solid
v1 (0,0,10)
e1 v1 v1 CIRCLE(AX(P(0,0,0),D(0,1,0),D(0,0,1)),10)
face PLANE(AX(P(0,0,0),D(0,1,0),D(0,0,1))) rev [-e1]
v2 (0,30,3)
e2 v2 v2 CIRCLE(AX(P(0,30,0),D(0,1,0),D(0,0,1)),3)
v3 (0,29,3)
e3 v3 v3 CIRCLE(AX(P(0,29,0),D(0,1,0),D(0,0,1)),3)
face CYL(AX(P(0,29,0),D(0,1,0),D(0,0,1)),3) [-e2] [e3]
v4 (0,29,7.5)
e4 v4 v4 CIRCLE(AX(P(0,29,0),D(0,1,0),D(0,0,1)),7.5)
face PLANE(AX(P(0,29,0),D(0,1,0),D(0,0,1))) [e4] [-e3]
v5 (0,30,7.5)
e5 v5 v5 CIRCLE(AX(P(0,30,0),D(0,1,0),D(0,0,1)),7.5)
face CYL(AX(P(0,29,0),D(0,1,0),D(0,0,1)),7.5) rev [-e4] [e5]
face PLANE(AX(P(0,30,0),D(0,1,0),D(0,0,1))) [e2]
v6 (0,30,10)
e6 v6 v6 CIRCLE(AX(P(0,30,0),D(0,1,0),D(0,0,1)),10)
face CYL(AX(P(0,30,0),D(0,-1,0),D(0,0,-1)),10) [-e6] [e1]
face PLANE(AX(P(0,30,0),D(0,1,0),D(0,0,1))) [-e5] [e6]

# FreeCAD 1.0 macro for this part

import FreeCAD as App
import Part
import Sketcher

doc = App.newDocument("Part")
params = doc.addObject("Spreadsheet::Sheet", "Params")
for row, (alias, value) in enumerate([
    ("sketch1_diameter", "20 mm"),
    ("pad1_length", "30 mm"),
    ("sketch2_diameter", "15 mm"),
    ("sketch2_diameter2", "6 mm"),
    ("pocket1_length", "1 mm"),
], start=1):
    params.set(f"A{row}", alias)
    params.set(f"B{row}", "=" + value)
    params.setAlias(f"B{row}", alias)

body = doc.addObject("PartDesign::Body", "Body")

sketch1 = doc.addObject("Sketcher::SketchObject", "Sketch")
body.addObject(sketch1)
sketch1.AttachmentSupport = (doc.XZ_Plane, [""])
sketch1.MapMode = "FlatFace"
sketch1.addGeometry(Part.Circle(App.Vector(0, 0, 0), App.Vector(0, 0, 1), 10), False)
sketch1.addConstraint(Sketcher.Constraint("Coincident", 0, 3, -1, 1))
sketch1.addConstraint(Sketcher.Constraint("Diameter", 0, 20.0))
sketch1.setExpression("Constraints[1]", "Params.sketch1_diameter")
pad1 = doc.addObject("PartDesign::Pad", "Pad")
body.addObject(pad1)
pad1.Profile = sketch1
pad1.setExpression("Length", "Params.pad1_length")
pad1.Reversed = True

sketch2 = doc.addObject("Sketcher::SketchObject", "Sketch001")
body.addObject(sketch2)
sketch2.AttachmentSupport = (doc.XZ_Plane, [""])
sketch2.MapMode = "FlatFace"
sketch2.AttachmentOffset = App.Placement(App.Vector(0, 0, -30), App.Rotation())
sketch2.addGeometry(Part.Circle(App.Vector(0, 0, 0), App.Vector(0, 0, 1), 7.5), False)
sketch2.addGeometry(Part.Circle(App.Vector(0, 0, 0), App.Vector(0, 0, 1), 3), False)
sketch2.addConstraint(Sketcher.Constraint("Coincident", 0, 3, -1, 1))
sketch2.addConstraint(Sketcher.Constraint("Coincident", 1, 3, -1, 1))
sketch2.addConstraint(Sketcher.Constraint("Diameter", 0, 15.0))
sketch2.addConstraint(Sketcher.Constraint("Diameter", 1, 6.0))
sketch2.setExpression("Constraints[2]", "Params.sketch2_diameter")
sketch2.setExpression("Constraints[3]", "Params.sketch2_diameter2")
pocket1 = doc.addObject("PartDesign::Pocket", "Pocket")
body.addObject(pocket1)
pocket1.Profile = sketch2
pocket1.setExpression("Length", "Params.pocket1_length")
pocket1.Reversed = True

doc.recompute()
